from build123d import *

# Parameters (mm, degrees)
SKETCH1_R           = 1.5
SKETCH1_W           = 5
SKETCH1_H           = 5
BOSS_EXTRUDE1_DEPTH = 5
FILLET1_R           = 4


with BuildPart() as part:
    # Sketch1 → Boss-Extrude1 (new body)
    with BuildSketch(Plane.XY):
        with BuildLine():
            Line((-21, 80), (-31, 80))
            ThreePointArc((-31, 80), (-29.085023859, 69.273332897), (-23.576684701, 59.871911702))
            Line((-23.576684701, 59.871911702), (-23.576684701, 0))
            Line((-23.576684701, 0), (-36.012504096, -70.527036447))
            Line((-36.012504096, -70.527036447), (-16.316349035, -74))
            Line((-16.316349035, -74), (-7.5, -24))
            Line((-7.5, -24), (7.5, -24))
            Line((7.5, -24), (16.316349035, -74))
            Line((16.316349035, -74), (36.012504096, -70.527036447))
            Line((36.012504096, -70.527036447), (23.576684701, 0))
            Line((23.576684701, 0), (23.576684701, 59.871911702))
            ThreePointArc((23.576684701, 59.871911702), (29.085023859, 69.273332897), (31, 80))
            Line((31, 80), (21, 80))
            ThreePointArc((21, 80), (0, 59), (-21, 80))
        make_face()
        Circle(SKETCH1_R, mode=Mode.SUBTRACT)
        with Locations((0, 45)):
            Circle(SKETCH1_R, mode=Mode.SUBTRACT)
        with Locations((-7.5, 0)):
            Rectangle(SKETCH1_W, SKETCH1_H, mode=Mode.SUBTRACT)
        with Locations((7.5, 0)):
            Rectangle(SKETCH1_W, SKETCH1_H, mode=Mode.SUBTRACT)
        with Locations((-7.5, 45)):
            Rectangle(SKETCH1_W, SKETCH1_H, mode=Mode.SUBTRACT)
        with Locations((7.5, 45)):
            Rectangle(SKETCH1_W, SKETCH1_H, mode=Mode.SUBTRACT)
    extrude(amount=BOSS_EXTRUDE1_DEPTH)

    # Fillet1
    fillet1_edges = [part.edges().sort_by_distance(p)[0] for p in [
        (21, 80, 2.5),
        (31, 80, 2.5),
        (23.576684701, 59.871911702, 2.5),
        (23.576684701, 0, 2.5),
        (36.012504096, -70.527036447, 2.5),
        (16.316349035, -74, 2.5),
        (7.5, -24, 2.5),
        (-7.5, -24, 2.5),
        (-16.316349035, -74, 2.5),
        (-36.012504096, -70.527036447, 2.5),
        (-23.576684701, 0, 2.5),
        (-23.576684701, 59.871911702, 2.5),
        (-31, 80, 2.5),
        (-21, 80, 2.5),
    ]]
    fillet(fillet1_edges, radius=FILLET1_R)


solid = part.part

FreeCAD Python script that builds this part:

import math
import FreeCAD as App
import Part
import Sketcher
from FreeCAD import Vector
Q = App.Units.Quantity


def edges_at(feature, points):
    """Names of the edges that pass closest to the given points."""
    edges = feature.Shape.Edges
    near = lambda p: min(range(len(edges)), key=lambda i: edges[i].distToShape(Part.Vertex(*p))[0])
    return sorted({f"Edge{near(p) + 1}" for p in points})


def add_polygon(sketch, points):
    """Adds a closed chain of lines whose ends are joined by coincident constraints."""
    first, n = sketch.GeometryCount, len(points)
    for a, b in zip(points, points[1:] + points[:1]):
        sketch.addGeometry(Part.LineSegment(App.Vector(*a, 0), App.Vector(*b, 0)), False)
    for i in range(n):
        sketch.addConstraint(Sketcher.Constraint("Coincident", first + i, 2, first + (i + 1) % n, 1))

doc = App.newDocument("Part")
params = doc.addObject("Spreadsheet::Sheet", "Params")
for row, (alias, value) in enumerate([
    ("sketch1_diameter", "3 mm"),
    ("sketch1_radius", "31 mm"),
    ("sketch1_radius2", "21 mm"),
    ("sketch1_width", "15 mm"),
    ("sketch1_width2", "5 mm"),
    ("pad1_length", "5 mm"),
    ("fillet_radius", "4 mm"),
], start=1):
    params.set(f"A{row}", alias)
    params.set(f"B{row}", "=" + value)
    params.setAlias(f"B{row}", alias)

body = doc.addObject("PartDesign::Body", "Body")

sketch1 = body.newObject("Sketcher::SketchObject", "Sketch")
sketch1.AttachmentSupport = (doc.getObject("XY_Plane"), [""])
sketch1.MapMode = "FlatFace"
sketch1.addGeometry(Part.LineSegment(Vector(-21, 80, 0), Vector(-31, 80, 0)), False)
sketch1.addGeometry(Part.ArcOfCircle(Part.Circle(Vector(0, 80, 0), Vector(0, 0, 1), 31), math.radians(180), math.radians(220.488331)), False)
sketch1.addGeometry(Part.LineSegment(Vector(-23.576685, 59.871912, 0), Vector(-23.576685, 0, 0)), False)
sketch1.addGeometry(Part.LineSegment(Vector(-23.576685, 0, 0), Vector(-36.012504, -70.527036, 0)), False)
sketch1.addGeometry(Part.LineSegment(Vector(-36.012504, -70.527036, 0), Vector(-16.316349, -74, 0)), False)
sketch1.addGeometry(Part.LineSegment(Vector(-16.316349, -74, 0), Vector(-7.5, -24, 0)), False)
sketch1.addGeometry(Part.LineSegment(Vector(-7.5, -24, 0), Vector(7.5, -24, 0)), False)
sketch1.addGeometry(Part.LineSegment(Vector(7.5, -24, 0), Vector(16.316349, -74, 0)), False)
sketch1.addGeometry(Part.LineSegment(Vector(16.316349, -74, 0), Vector(36.012504, -70.527036, 0)), False)
sketch1.addGeometry(Part.LineSegment(Vector(36.012504, -70.527036, 0), Vector(23.576685, 0, 0)), False)
sketch1.addGeometry(Part.LineSegment(Vector(23.576685, 0, 0), Vector(23.576685, 59.871912, 0)), False)
sketch1.addGeometry(Part.ArcOfCircle(Part.Circle(Vector(0, 80, 0), Vector(0, 0, 1), 31), math.radians(-40.488331), math.radians(0)), False)
sketch1.addGeometry(Part.LineSegment(Vector(31, 80, 0), Vector(21, 80, 0)), False)
sketch1.addGeometry(Part.ArcOfCircle(Part.Circle(Vector(0, 80, 0), Vector(0, 0, 1), 21), math.radians(180), math.radians(360)), False)
add_polygon(sketch1, [(-5, -2.5), (-10, -2.5), (-10, 2.5), (-5, 2.5)])
sketch1.addGeometry(Part.Circle(Vector(0, 0, 0), Vector(0, 0, 1), 1.5), False)
add_polygon(sketch1, [(10, -2.5), (5, -2.5), (5, 2.5), (10, 2.5)])
add_polygon(sketch1, [(-5, 42.5), (-10, 42.5), (-10, 47.5), (-5, 47.5)])
sketch1.addGeometry(Part.Circle(Vector(0, 45, 0), Vector(0, 0, 1), 1.5), False)
add_polygon(sketch1, [(10, 42.5), (5, 42.5), (5, 47.5), (10, 47.5)])
sketch1.addConstraint([
    Sketcher.Constraint("Coincident", 0, 2, 1, 1),
    Sketcher.Constraint("Coincident", 1, 2, 2, 1),
    Sketcher.Constraint("Coincident", 2, 2, 3, 1),
    Sketcher.Constraint("Coincident", 3, 2, 4, 1),
    Sketcher.Constraint("Coincident", 4, 2, 5, 1),
    Sketcher.Constraint("Coincident", 5, 2, 6, 1),
    Sketcher.Constraint("Coincident", 6, 2, 7, 1),
    Sketcher.Constraint("Coincident", 7, 2, 8, 1),
    Sketcher.Constraint("Coincident", 8, 2, 9, 1),
    Sketcher.Constraint("Coincident", 9, 2, 10, 1),
    Sketcher.Constraint("Coincident", 10, 2, 11, 1),
    Sketcher.Constraint("Coincident", 11, 2, 12, 1),
    Sketcher.Constraint("Coincident", 12, 2, 13, 2),
    Sketcher.Constraint("Coincident", 13, 1, 0, 1),
    Sketcher.Constraint("Horizontal", 0),
    Sketcher.Constraint("Vertical", 2),
    Sketcher.Constraint("Horizontal", 6),
    Sketcher.Constraint("Vertical", 10),
    Sketcher.Constraint("Horizontal", 12),
    Sketcher.Constraint("Horizontal", 14),
    Sketcher.Constraint("Vertical", 15),
    Sketcher.Constraint("Horizontal", 16),
    Sketcher.Constraint("Vertical", 17),
    Sketcher.Constraint("Horizontal", 19),
    Sketcher.Constraint("Vertical", 20),
    Sketcher.Constraint("Horizontal", 21),
    Sketcher.Constraint("Vertical", 22),
    Sketcher.Constraint("Horizontal", 23),
    Sketcher.Constraint("Vertical", 24),
    Sketcher.Constraint("Horizontal", 25),
    Sketcher.Constraint("Vertical", 26),
    Sketcher.Constraint("Horizontal", 28),
    Sketcher.Constraint("Vertical", 29),
    Sketcher.Constraint("Horizontal", 30),
    Sketcher.Constraint("Vertical", 31),
    Sketcher.Constraint("Coincident", 18, 3, -1, 1),
    Sketcher.Constraint("Coincident", 11, 3, 1, 3),
    Sketcher.Constraint("Coincident", 13, 3, 1, 3),
    Sketcher.Constraint("Equal", 1, 11),
    Sketcher.Constraint("Equal", 18, 27),
    Sketcher.Constraint("Symmetric", 2, 2, 9, 2, -1, 1),
    Sketcher.Constraint("Symmetric", 16, 2, 19, 2, -1, 1),
    Sketcher.Constraint("Symmetric", 14, 2, 21, 2, -1, 1),
    Sketcher.Constraint("Symmetric", 4, 2, 7, 2, -2),
    Sketcher.Constraint("Symmetric", 3, 2, 8, 2, -2),
    Sketcher.Constraint("Symmetric", 0, 2, 11, 2, -2),
    Sketcher.Constraint("Symmetric", 26, 2, 28, 2, -2),
    Sketcher.Constraint("Symmetric", 24, 2, 30, 2, -2),
    Sketcher.Constraint("PointOnObject", 27, 3, -2),
    Sketcher.Constraint("PointOnObject", 2, 2, -1),
    Sketcher.Constraint("Perpendicular", 3, 4),
    Sketcher.Constraint("Perpendicular", 4, 5),
    Sketcher.Constraint("Perpendicular", 7, 8),
    Sketcher.Constraint("Horizontal", 13, 3, 0, 2),
    Sketcher.Constraint("Horizontal", 17, 2, 19, 2),
    Sketcher.Constraint("Vertical", 15, 2, 23, 2),
    Sketcher.Constraint("Vertical", 17, 2, 25, 2),
    Sketcher.Constraint("Equal", 30, 15),
    Sketcher.Constraint("Equal", 22, 24),
    Sketcher.Constraint("Diameter", 18, 3.0),
    Sketcher.Constraint("Radius", 1, 31.0),
    Sketcher.Constraint("Radius", 13, 21.0),
    Sketcher.Constraint("DistanceX", 6, 1, 6, 2, 15.0),
    Sketcher.Constraint("DistanceX", 14, 2, 14, 1, 5.0),
    Sketcher.Constraint("Angle", 3, Q("-100 deg")),
    Sketcher.Constraint("Distance", 4, 20.0),
    Sketcher.Constraint("DistanceY", -1, 1, 1, 3, 80.0),
    Sketcher.Constraint("DistanceY", -1, 1, 27, 3, 45.0),
    Sketcher.Constraint("DistanceY", 4, 2, -1, 1, 74.0),
    Sketcher.Constraint("DistanceY", 5, 2, -1, 1, 24.0),
    Sketcher.Constraint("DistanceX", 14, 2, -1, 1, 10.0),
    Sketcher.Constraint("DistanceY", -1, 1, 23, 2, 42.5),
])
sketch1.setExpression("Constraints[75]", "Params.sketch1_diameter")
sketch1.setExpression("Constraints[76]", "Params.sketch1_radius")
sketch1.setExpression("Constraints[77]", "Params.sketch1_radius2")
sketch1.setExpression("Constraints[78]", "Params.sketch1_width")
sketch1.setExpression("Constraints[79]", "Params.sketch1_width2")
pad1 = body.newObject("PartDesign::Pad", "Pad")
pad1.Profile = sketch1
pad1.setExpression("Length", "Params.pad1_length")
doc.recompute()

fillet = body.newObject("PartDesign::Fillet", "Fillet")
fillet.Base = (pad1, edges_at(pad1, [
    (21, 80, 2.5),
    (31, 80, 2.5),
    (23.577, 59.872, 2.5),
    (23.577, 0, 2.5),
    (36.013, -70.527, 2.5),
    (16.316, -74, 2.5),
    (7.5, -24, 2.5),
    (-7.5, -24, 2.5),
    (-16.316, -74, 2.5),
    (-36.013, -70.527, 2.5),
    (-23.577, 0, 2.5),
    (-23.577, 59.872, 2.5),
    (-31, 80, 2.5),
    (-21, 80, 2.5),
]))
fillet.setExpression("Radius", "Params.fillet_radius")

doc.recompute()
